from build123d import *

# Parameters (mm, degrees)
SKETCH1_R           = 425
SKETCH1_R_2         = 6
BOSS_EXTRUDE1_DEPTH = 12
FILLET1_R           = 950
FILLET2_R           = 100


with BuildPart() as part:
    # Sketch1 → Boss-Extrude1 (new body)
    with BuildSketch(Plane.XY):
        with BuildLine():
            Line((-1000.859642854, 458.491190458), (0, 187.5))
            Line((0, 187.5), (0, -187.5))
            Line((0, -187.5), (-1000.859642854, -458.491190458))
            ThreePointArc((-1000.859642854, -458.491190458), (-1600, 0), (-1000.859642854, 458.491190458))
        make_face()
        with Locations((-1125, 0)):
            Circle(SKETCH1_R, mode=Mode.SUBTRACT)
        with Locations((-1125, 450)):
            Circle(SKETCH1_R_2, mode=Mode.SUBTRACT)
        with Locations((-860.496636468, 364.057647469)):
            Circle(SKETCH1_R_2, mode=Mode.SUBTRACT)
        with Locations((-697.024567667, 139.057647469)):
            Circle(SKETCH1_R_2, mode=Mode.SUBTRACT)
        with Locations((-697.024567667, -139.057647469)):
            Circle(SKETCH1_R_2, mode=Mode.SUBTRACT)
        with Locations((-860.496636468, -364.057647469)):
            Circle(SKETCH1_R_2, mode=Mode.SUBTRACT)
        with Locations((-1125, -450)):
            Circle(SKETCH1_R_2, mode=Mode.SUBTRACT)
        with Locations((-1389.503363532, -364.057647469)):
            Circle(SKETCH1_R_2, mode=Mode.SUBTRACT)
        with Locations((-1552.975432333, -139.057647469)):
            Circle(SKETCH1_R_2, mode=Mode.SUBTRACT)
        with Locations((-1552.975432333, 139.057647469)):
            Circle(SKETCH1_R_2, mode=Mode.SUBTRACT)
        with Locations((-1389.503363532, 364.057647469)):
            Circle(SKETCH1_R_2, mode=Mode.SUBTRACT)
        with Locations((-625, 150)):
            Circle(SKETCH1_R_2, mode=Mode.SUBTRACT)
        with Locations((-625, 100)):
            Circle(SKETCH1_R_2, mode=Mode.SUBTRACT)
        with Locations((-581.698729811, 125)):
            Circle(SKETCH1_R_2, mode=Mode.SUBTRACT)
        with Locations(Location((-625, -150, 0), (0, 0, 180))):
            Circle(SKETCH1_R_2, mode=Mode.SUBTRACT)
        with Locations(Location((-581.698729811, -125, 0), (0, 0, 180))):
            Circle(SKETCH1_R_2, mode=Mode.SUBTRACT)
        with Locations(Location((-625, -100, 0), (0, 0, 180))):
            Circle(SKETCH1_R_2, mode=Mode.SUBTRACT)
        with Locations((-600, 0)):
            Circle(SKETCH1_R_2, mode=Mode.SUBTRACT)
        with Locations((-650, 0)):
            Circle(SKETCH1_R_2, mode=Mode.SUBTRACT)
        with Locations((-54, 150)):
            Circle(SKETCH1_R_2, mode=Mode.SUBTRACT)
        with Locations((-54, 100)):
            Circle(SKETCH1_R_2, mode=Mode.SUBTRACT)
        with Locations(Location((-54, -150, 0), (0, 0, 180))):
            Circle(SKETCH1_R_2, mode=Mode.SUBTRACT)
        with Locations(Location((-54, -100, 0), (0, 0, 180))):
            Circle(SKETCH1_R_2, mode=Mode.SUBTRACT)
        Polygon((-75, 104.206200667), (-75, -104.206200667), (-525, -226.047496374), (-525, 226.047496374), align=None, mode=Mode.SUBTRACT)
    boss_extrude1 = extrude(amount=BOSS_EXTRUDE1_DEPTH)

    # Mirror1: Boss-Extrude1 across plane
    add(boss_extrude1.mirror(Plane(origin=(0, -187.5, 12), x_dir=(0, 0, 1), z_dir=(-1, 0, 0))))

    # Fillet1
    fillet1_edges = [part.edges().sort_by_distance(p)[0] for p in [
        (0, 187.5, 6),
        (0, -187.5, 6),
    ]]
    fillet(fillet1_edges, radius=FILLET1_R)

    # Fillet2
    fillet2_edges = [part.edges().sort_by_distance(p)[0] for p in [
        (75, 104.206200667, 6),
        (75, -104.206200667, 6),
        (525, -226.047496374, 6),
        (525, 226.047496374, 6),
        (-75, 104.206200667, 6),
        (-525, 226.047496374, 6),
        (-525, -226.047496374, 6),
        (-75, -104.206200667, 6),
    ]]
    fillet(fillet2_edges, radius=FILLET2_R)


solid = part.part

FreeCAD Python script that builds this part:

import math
import FreeCAD as App
import Part
import Sketcher

V = App.Vector


def edges_at(feature, points):
    """Names of the edges that pass closest to the given points."""
    edges = feature.Shape.Edges
    near = lambda p: min(range(len(edges)), key=lambda i: edges[i].distToShape(Part.Vertex(*p))[0])
    return sorted({f"Edge{near(p) + 1}" for p in points})

doc = App.newDocument("Part")
body = doc.addObject("PartDesign::Body", "Body")

# Sketch on XY plane
sketch1 = body.newObject("Sketcher::SketchObject", "Sketch")
sketch1.AttachmentSupport = (doc.getObject("XY_Plane"), [""])
sketch1.MapMode = "FlatFace"
sketch1.addGeometry(Part.LineSegment(V(0, 187.5, 0), V(-1000.859643, 458.49119, 0)), False)
sketch1.addGeometry(Part.ArcOfCircle(Part.Circle(V(-1125, 0, 0), V(0, 0, 1), 475), math.radians(74.84993), math.radians(285.15007)), False)
sketch1.addGeometry(Part.LineSegment(V(-1000.859643, -458.49119, 0), V(0, -187.5, 0)), False)
sketch1.addGeometry(Part.LineSegment(V(0, -187.5, 0), V(0, 187.5, 0)), False)
sketch1.addGeometry(Part.Circle(V(-54, -150, 0), V(0, 0, 1), 6), False)
sketch1.addGeometry(Part.Circle(V(-54, -100, 0), V(0, 0, 1), 6), False)
sketch1.addGeometry(Part.Circle(V(-581.69873, -125, 0), V(0, 0, 1), 6), False)
sketch1.addGeometry(Part.Circle(V(-625, -150, 0), V(0, 0, 1), 6), False)
sketch1.addGeometry(Part.Circle(V(-697.024568, -139.057647, 0), V(0, 0, 1), 6), False)
sketch1.addGeometry(Part.Circle(V(-625, -100, 0), V(0, 0, 1), 6), False)
sketch1.addGeometry(Part.Circle(V(-860.496636, -364.057647, 0), V(0, 0, 1), 6), False)
sketch1.addGeometry(Part.Circle(V(-1125, -450, 0), V(0, 0, 1), 6), False)
sketch1.addGeometry(Part.Circle(V(-1389.503364, -364.057647, 0), V(0, 0, 1), 6), False)
sketch1.addGeometry(Part.Circle(V(-1552.975432, -139.057647, 0), V(0, 0, 1), 6), False)
sketch1.addGeometry(Part.Circle(V(-54, 100, 0), V(0, 0, 1), 6), False)
sketch1.addGeometry(Part.LineSegment(V(-75, 104.206201, 0), V(-75, -104.206201, 0)), False)
sketch1.addGeometry(Part.LineSegment(V(-75, -104.206201, 0), V(-525, -226.047496, 0)), False)
sketch1.addGeometry(Part.LineSegment(V(-525, -226.047496, 0), V(-525, 226.047496, 0)), False)
sketch1.addGeometry(Part.LineSegment(V(-525, 226.047496, 0), V(-75, 104.206201, 0)), False)
sketch1.addGeometry(Part.Circle(V(-54, 150, 0), V(0, 0, 1), 6), False)
sketch1.addGeometry(Part.Circle(V(-600, 0, 0), V(0, 0, 1), 6), False)
sketch1.addGeometry(Part.Circle(V(-650, 0, 0), V(0, 0, 1), 6), False)
sketch1.addGeometry(Part.Circle(V(-625, 100, 0), V(0, 0, 1), 6), False)
sketch1.addGeometry(Part.Circle(V(-581.69873, 125, 0), V(0, 0, 1), 6), False)
sketch1.addGeometry(Part.Circle(V(-697.024568, 139.057647, 0), V(0, 0, 1), 6), False)
sketch1.addGeometry(Part.Circle(V(-625, 150, 0), V(0, 0, 1), 6), False)
sketch1.addGeometry(Part.Circle(V(-1125, 0, 0), V(0, 0, 1), 425), False)
sketch1.addGeometry(Part.Circle(V(-1552.975432, 139.057647, 0), V(0, 0, 1), 6), False)
sketch1.addGeometry(Part.Circle(V(-860.496636, 364.057647, 0), V(0, 0, 1), 6), False)
sketch1.addGeometry(Part.Circle(V(-1125, 450, 0), V(0, 0, 1), 6), False)
sketch1.addGeometry(Part.Circle(V(-1389.503364, 364.057647, 0), V(0, 0, 1), 6), False)
sketch1.addConstraint(Sketcher.Constraint("Tangent", 0, 2, 1, 1))
sketch1.addConstraint(Sketcher.Constraint("Tangent", 1, 2, 2, 1))
sketch1.addConstraint(Sketcher.Constraint("Coincident", 2, 2, 3, 1))
sketch1.addConstraint(Sketcher.Constraint("Coincident", 3, 2, 0, 1))
sketch1.addConstraint(Sketcher.Constraint("Coincident", 15, 2, 16, 1))
sketch1.addConstraint(Sketcher.Constraint("Coincident", 16, 2, 17, 1))
sketch1.addConstraint(Sketcher.Constraint("Coincident", 17, 2, 18, 1))
sketch1.addConstraint(Sketcher.Constraint("Coincident", 18, 2, 15, 1))
sketch1.addConstraint(Sketcher.Constraint("Vertical", 3))
sketch1.addConstraint(Sketcher.Constraint("Vertical", 15))
sketch1.addConstraint(Sketcher.Constraint("Vertical", 17))
sketch1.addConstraint(Sketcher.Constraint("Coincident", 26, 3, 1, 3))
sketch1.addConstraint(Sketcher.Constraint("Equal", 4, 5))
sketch1.addConstraint(Sketcher.Constraint("Equal", 5, 6))
sketch1.addConstraint(Sketcher.Constraint("Equal", 6, 7))
sketch1.addConstraint(Sketcher.Constraint("Equal", 7, 8))
sketch1.addConstraint(Sketcher.Constraint("Equal", 8, 9))
sketch1.addConstraint(Sketcher.Constraint("Equal", 9, 10))
sketch1.addConstraint(Sketcher.Constraint("Equal", 10, 11))
sketch1.addConstraint(Sketcher.Constraint("Equal", 11, 12))
sketch1.addConstraint(Sketcher.Constraint("Equal", 12, 13))
sketch1.addConstraint(Sketcher.Constraint("Equal", 13, 14))
sketch1.addConstraint(Sketcher.Constraint("Equal", 14, 19))
sketch1.addConstraint(Sketcher.Constraint("Equal", 19, 20))
sketch1.addConstraint(Sketcher.Constraint("Equal", 20, 21))
sketch1.addConstraint(Sketcher.Constraint("Equal", 21, 22))
sketch1.addConstraint(Sketcher.Constraint("Equal", 22, 23))
sketch1.addConstraint(Sketcher.Constraint("Equal", 23, 24))
sketch1.addConstraint(Sketcher.Constraint("Equal", 24, 25))
sketch1.addConstraint(Sketcher.Constraint("Equal", 25, 27))
sketch1.addConstraint(Sketcher.Constraint("Equal", 27, 28))
sketch1.addConstraint(Sketcher.Constraint("Equal", 28, 29))
sketch1.addConstraint(Sketcher.Constraint("Equal", 29, 30))
sketch1.addConstraint(Sketcher.Constraint("Symmetric", 2, 2, 3, 2, -1, 1))
sketch1.addConstraint(Sketcher.Constraint("Symmetric", 5, 3, 14, 3, -1))
sketch1.addConstraint(Sketcher.Constraint("Symmetric", 4, 3, 19, 3, -1))
sketch1.addConstraint(Sketcher.Constraint("Symmetric", 9, 3, 22, 3, -1))
sketch1.addConstraint(Sketcher.Constraint("Symmetric", 6, 3, 23, 3, -1))
sketch1.addConstraint(Sketcher.Constraint("Symmetric", 8, 3, 24, 3, -1))
sketch1.addConstraint(Sketcher.Constraint("Symmetric", 7, 3, 25, 3, -1))
sketch1.addConstraint(Sketcher.Constraint("Symmetric", 13, 3, 27, 3, -1))
sketch1.addConstraint(Sketcher.Constraint("Symmetric", 10, 3, 28, 3, -1))
sketch1.addConstraint(Sketcher.Constraint("Symmetric", 11, 3, 29, 3, -1))
sketch1.addConstraint(Sketcher.Constraint("Symmetric", 12, 3, 30, 3, -1))
sketch1.addConstraint(Sketcher.Constraint("PointOnObject", 1, 3, -1))
sketch1.addConstraint(Sketcher.Constraint("PointOnObject", 20, 3, -1))
sketch1.addConstraint(Sketcher.Constraint("PointOnObject", 21, 3, -1))
sketch1.addConstraint(Sketcher.Constraint("Parallel", 2, 16))
sketch1.addConstraint(Sketcher.Constraint("Parallel", 0, 18))
sketch1.addConstraint(Sketcher.Constraint("Horizontal", 4, 3, 7, 3))
sketch1.addConstraint(Sketcher.Constraint("Horizontal", 5, 3, 9, 3))
sketch1.addConstraint(Sketcher.Constraint("Horizontal", 10, 3, 12, 3))
sketch1.addConstraint(Sketcher.Constraint("Horizontal", 8, 3, 13, 3))
sketch1.addConstraint(Sketcher.Constraint("Vertical", 4, 3, 5, 3))
sketch1.addConstraint(Sketcher.Constraint("Vertical", 7, 3, 9, 3))
sketch1.addConstraint(Sketcher.Constraint("Vertical", 1, 3, 11, 3))
sketch1.addConstraint(Sketcher.Constraint("Diameter", 4, 12.0))
sketch1.addConstraint(Sketcher.Constraint("Diameter", 26, 850.0))
sketch1.addConstraint(Sketcher.Constraint("Radius", 1, 475.0))
sketch1.addConstraint(Sketcher.Constraint("DistanceY", 3, 1, 3, 2, 375.0))
sketch1.addConstraint(Sketcher.Constraint("DistanceX", 1, 3, -1, 1, 1125.0))
sketch1.addConstraint(Sketcher.Constraint("DistanceX", 4, 3, -1, 1, 54.0))
sketch1.addConstraint(Sketcher.Constraint("DistanceY", 4, 3, -1, 1, 150.0))
sketch1.addConstraint(Sketcher.Constraint("DistanceY", 5, 3, -1, 1, 100.0))
sketch1.addConstraint(Sketcher.Constraint("DistanceY", 6, 3, -1, 1, 125.0))
sketch1.addConstraint(Sketcher.Constraint("DistanceX", 7, 3, -1, 1, 625.0))
sketch1.addConstraint(Sketcher.Constraint("DistanceY", 11, 3, -1, 1, 450.0))
sketch1.addConstraint(Sketcher.Constraint("DistanceX", 20, 3, -1, 1, 600.0))
sketch1.addConstraint(Sketcher.Constraint("DistanceX", 21, 3, -1, 1, 650.0))
sketch1.addConstraint(Sketcher.Constraint("DistanceX", 15, 2, -1, 1, 75.0))
sketch1.addConstraint(Sketcher.Constraint("DistanceX", 16, 2, -1, 1, 525.0))
sketch1.addConstraint(Sketcher.Constraint("DistanceY", 10, 3, 8, 3, 225.0))
sketch1.addConstraint(Sketcher.Constraint("DistanceY", 15, 2, 15, 1, 208.412401))
sketch1.addConstraint(Sketcher.Constraint("DistanceY", 15, 2, -1, 1, 104.206201))
sketch1.addConstraint(Sketcher.Constraint("DistanceX", 6, 3, -1, 1, 581.69873))
sketch1.addConstraint(Sketcher.Constraint("DistanceX", 10, 3, 8, 3, 163.472069))
sketch1.addConstraint(Sketcher.Constraint("DistanceX", 13, 3, 12, 3, 163.472069))
sketch1.addConstraint(Sketcher.Constraint("DistanceX", 30, 3, 0, 2, 388.643721))
sketch1.addConstraint(Sketcher.Constraint("DistanceY", 16, 2, 8, 3, 86.989849))
sketch1.addConstraint(Sketcher.Constraint("DistanceX", 8, 3, -1, 1, 697.024568))
pad1 = body.newObject("PartDesign::Pad", "Pad")
pad1.Profile = sketch1
pad1.Length = 12
doc.recompute()

mirrored = body.newObject("PartDesign::Mirrored", "Mirrored")
mirrored.Originals = [pad1]
mirrored.MirrorPlane = (doc.getObject("YZ_Plane"), [""])
body.Tip = mirrored
doc.recompute()

fillet = body.newObject("PartDesign::Fillet", "Fillet")
fillet.Base = (mirrored, edges_at(mirrored, [(0, 187.5, 6), (0, -187.5, 6)]))
fillet.Radius = 950
doc.recompute()

fillet2 = body.newObject("PartDesign::Fillet", "Fillet001")
fillet2.Base = (fillet, edges_at(fillet, [
    (75, 104.206, 6),
    (75, -104.206, 6),
    (525, -226.047, 6),
    (525, 226.047, 6),
    (-75, 104.206, 6),
    (-525, 226.047, 6),
    (-525, -226.047, 6),
    (-75, -104.206, 6),
]))
fillet2.Radius = 100

doc.recompute()
